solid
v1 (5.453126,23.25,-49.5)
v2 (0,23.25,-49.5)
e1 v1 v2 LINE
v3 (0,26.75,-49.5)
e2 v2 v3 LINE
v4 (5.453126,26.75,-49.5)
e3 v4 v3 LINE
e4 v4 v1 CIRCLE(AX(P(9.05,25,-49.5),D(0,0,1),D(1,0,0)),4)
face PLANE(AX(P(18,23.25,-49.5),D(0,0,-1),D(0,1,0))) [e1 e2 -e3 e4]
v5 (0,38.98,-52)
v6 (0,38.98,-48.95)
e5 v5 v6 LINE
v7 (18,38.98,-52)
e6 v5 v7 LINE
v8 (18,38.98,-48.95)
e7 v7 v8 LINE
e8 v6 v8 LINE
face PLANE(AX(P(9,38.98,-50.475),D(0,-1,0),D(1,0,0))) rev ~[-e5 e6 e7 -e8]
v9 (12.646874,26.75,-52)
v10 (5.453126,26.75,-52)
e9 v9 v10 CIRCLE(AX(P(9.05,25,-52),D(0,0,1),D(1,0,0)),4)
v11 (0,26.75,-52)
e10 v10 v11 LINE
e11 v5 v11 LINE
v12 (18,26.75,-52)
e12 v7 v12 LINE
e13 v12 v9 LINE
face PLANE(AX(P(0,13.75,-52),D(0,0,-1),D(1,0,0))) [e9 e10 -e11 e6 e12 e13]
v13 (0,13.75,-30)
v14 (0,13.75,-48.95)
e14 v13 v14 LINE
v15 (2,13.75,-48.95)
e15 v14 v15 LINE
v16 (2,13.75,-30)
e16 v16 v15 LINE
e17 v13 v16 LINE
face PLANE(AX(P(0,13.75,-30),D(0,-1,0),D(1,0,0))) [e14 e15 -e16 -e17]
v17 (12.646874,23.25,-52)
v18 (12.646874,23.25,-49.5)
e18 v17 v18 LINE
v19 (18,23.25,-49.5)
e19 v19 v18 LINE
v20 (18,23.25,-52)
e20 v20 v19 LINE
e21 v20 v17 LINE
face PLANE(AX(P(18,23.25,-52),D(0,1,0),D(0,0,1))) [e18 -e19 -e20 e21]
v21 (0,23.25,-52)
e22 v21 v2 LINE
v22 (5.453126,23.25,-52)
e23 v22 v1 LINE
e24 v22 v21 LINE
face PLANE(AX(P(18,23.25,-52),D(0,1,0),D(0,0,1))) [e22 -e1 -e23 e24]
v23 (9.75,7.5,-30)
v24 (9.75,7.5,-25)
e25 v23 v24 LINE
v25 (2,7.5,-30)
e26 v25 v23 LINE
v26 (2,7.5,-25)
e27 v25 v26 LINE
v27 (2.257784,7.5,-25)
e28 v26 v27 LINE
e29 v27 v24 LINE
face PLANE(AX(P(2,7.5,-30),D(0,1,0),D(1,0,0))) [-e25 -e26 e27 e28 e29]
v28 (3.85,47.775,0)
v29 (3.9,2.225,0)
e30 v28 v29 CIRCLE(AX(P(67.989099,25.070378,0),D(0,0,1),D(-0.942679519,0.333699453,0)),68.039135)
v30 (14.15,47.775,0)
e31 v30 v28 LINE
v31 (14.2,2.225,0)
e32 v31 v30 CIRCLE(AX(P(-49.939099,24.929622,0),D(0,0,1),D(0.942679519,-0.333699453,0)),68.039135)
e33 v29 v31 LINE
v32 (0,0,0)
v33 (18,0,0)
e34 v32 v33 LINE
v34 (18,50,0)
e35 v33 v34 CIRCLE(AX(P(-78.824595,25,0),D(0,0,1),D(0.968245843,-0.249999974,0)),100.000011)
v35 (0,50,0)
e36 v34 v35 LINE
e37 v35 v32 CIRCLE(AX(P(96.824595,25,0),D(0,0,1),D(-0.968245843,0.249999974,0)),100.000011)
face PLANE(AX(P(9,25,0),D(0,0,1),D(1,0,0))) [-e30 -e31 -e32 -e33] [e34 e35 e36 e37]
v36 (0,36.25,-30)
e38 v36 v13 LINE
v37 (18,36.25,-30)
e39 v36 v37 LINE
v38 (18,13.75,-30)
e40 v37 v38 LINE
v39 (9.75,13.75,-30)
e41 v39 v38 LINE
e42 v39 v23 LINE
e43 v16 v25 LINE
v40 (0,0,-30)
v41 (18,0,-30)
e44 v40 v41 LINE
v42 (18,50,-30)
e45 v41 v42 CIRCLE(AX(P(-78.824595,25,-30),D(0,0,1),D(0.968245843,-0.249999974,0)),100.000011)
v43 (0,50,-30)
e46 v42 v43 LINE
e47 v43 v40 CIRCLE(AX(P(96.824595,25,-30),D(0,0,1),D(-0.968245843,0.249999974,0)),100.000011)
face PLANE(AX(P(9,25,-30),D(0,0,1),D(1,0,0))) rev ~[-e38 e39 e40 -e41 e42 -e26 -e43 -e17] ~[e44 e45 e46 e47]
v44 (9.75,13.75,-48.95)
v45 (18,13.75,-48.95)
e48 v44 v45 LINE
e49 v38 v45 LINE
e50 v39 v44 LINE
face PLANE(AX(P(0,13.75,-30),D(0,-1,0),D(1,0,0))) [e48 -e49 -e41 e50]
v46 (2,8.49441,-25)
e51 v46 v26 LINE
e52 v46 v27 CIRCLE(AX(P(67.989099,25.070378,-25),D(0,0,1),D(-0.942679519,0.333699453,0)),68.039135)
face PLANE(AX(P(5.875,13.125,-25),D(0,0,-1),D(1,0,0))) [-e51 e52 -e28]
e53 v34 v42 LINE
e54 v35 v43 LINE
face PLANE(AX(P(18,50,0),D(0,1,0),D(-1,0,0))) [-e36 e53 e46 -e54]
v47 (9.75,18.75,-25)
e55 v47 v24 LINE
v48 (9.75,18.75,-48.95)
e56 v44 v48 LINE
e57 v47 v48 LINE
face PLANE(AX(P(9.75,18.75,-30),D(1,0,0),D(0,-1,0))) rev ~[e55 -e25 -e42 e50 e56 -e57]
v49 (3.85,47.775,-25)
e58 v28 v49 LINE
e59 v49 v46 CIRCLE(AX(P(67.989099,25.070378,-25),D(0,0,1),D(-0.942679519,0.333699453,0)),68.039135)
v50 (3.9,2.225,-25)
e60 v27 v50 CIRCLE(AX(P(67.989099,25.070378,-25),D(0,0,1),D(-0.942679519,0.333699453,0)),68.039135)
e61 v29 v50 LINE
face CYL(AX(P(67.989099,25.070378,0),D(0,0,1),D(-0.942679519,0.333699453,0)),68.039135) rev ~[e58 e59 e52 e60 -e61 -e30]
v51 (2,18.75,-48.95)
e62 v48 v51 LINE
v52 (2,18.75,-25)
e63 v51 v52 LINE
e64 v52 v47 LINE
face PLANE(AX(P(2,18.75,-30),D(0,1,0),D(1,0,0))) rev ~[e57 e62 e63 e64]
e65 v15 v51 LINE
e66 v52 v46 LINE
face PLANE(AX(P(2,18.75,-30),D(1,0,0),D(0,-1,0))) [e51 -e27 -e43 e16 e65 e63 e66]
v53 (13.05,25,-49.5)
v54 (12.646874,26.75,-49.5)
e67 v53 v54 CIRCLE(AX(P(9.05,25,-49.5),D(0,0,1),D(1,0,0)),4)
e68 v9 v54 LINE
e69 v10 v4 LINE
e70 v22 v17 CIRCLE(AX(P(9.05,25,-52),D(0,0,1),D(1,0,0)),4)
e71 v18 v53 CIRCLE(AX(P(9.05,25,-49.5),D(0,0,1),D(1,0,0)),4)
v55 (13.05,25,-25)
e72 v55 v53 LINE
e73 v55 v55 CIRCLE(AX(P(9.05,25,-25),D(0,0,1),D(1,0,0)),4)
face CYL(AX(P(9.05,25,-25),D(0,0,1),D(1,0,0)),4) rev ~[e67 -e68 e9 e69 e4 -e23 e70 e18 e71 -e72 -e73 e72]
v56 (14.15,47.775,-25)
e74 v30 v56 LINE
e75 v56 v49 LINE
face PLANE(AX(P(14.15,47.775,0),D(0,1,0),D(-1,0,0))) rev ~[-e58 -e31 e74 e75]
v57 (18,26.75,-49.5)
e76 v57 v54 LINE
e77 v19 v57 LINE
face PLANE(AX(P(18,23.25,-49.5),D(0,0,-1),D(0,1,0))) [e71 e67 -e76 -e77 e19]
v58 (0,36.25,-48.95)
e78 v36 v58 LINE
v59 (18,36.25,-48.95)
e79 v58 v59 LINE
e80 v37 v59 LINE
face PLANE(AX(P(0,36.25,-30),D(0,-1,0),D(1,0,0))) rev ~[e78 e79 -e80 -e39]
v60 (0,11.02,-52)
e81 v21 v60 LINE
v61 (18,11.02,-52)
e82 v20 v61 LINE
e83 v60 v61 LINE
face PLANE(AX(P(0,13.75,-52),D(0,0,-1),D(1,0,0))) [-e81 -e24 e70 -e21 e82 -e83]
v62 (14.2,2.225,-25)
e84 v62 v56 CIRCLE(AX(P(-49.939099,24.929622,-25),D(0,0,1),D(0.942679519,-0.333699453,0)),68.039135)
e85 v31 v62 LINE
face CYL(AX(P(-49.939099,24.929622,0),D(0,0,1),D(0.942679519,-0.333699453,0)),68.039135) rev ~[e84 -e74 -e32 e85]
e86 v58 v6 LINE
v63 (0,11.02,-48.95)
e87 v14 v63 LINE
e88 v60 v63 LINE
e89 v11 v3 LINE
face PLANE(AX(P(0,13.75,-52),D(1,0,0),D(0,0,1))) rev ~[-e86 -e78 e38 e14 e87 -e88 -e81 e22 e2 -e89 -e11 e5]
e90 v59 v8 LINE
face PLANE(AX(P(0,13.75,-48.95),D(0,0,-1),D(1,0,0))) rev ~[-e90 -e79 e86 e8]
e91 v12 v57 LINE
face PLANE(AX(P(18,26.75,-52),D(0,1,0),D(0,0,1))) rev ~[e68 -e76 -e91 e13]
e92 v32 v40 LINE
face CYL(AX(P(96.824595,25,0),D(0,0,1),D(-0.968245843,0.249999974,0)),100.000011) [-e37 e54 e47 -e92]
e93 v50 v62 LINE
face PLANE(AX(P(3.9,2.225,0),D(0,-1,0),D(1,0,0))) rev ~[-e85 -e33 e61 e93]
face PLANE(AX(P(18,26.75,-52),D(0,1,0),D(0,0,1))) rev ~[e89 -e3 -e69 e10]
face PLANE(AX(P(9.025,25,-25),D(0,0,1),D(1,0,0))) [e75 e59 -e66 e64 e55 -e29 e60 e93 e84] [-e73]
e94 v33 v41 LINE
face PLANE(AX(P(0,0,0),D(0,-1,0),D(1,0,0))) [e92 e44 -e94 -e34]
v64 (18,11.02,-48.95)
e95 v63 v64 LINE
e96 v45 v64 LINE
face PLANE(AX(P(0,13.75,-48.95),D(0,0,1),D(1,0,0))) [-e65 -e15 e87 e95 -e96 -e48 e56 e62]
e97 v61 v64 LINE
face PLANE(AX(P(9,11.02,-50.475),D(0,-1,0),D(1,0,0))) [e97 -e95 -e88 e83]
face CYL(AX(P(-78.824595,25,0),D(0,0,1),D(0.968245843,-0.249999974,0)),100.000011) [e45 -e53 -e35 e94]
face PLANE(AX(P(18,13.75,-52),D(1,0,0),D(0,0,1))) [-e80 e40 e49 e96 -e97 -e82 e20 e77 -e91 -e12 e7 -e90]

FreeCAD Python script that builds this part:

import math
import FreeCAD as App
import Part
import Sketcher
Q = App.Units.Quantity

doc = App.newDocument("Part")
body = doc.addObject("PartDesign::Body", "Body")

sketch1 = doc.addObject("Sketcher::SketchObject", "Sketch")
body.addObject(sketch1)
sketch1.AttachmentSupport = (doc.XY_Plane, [""])
sketch1.MapMode = "FlatFace"
sketch1.addGeometry([
    Part.LineSegment(App.Vector(0, 0, 0), App.Vector(18, 0, 0)),
    Part.ArcOfCircle(Part.Circle(App.Vector(-78.824595, 25, 0), App.Vector(0, 0, 1), 100.000011), math.radians(-14.477511), math.radians(14.477511)),
    Part.LineSegment(App.Vector(18, 50, 0), App.Vector(0, 50, 0)),
    Part.ArcOfCircle(Part.Circle(App.Vector(96.824595, 25, 0), App.Vector(0, 0, 1), 100.000011), math.radians(165.522489), math.radians(194.477511)),
], False)
sketch1.addConstraint([
    Sketcher.Constraint("Coincident", 0, 2, 1, 1),
    Sketcher.Constraint("Coincident", 1, 2, 2, 1),
    Sketcher.Constraint("Coincident", 2, 2, 3, 1),
    Sketcher.Constraint("Coincident", 3, 2, 0, 1),
    Sketcher.Constraint("Horizontal", 0),
    Sketcher.Constraint("Horizontal", 2),
    Sketcher.Constraint("Coincident", 3, 2, -1, 1),
    Sketcher.Constraint("Equal", 1, 3),
    Sketcher.Constraint("PointOnObject", 2, 2, -2),
    Sketcher.Constraint("Horizontal", 1, 3, 3, 3),
    Sketcher.Constraint("DistanceX", 0, 1, 0, 2, Q("18 mm")),
    Sketcher.Constraint("DistanceY", -1, 1, 1, 3, Q("25 mm")),
    Sketcher.Constraint("Radius", 1, Q("100.000011 mm")),
])
pad1 = doc.addObject("PartDesign::Pad", "Pad")
body.addObject(pad1)
pad1.Profile = sketch1
pad1.Length = 30
pad1.Reversed = True

sketch2 = doc.addObject("Sketcher::SketchObject", "Sketch001")
body.addObject(sketch2)
sketch2.AttachmentSupport = (doc.XY_Plane, [""])
sketch2.MapMode = "FlatFace"
sketch2.addGeometry([
    Part.LineSegment(App.Vector(3.9, 2.225, 0), App.Vector(14.2, 2.225, 0)),
    Part.ArcOfCircle(Part.Circle(App.Vector(-49.939099, 24.929622, 0), App.Vector(0, 0, 1), 68.039135), math.radians(-19.493472), math.radians(19.619258)),
    Part.LineSegment(App.Vector(14.15, 47.775, 0), App.Vector(3.85, 47.775, 0)),
    Part.ArcOfCircle(Part.Circle(App.Vector(67.989099, 25.070378, 0), App.Vector(0, 0, 1), 68.039135), math.radians(160.506528), math.radians(199.619258)),
], False)
sketch2.addConstraint([
    Sketcher.Constraint("Coincident", 0, 2, 1, 1),
    Sketcher.Constraint("Coincident", 1, 2, 2, 1),
    Sketcher.Constraint("Coincident", 2, 2, 3, 1),
    Sketcher.Constraint("Coincident", 3, 2, 0, 1),
    Sketcher.Constraint("Horizontal", 0),
    Sketcher.Constraint("Horizontal", 2),
    Sketcher.Constraint("Equal", 1, 3),
    Sketcher.Constraint("Equal", 0, 2),
    Sketcher.Constraint("DistanceX", 0, 1, 0, 2, Q("10.3 mm")),
    Sketcher.Constraint("DistanceX", -1, 1, 0, 2, Q("14.2 mm")),
    Sketcher.Constraint("DistanceX", -1, 1, 1, 2, Q("14.15 mm")),
    Sketcher.Constraint("DistanceY", 0, 2, 1, 2, Q("45.55 mm")),
    Sketcher.Constraint("DistanceY", -1, 1, 0, 2, Q("2.225 mm")),
    Sketcher.Constraint("Radius", 1, Q("68.039135 mm")),
])
pocket1 = doc.addObject("PartDesign::Pocket", "Pocket")
body.addObject(pocket1)
pocket1.Profile = sketch2
pocket1.Length = 25

sketch3 = doc.addObject("Sketcher::SketchObject", "Sketch002")
body.addObject(sketch3)
sketch3.AttachmentSupport = (doc.XY_Plane, [""])
sketch3.MapMode = "FlatFace"
sketch3.AttachmentOffset = App.Placement(App.Vector(0, 0, -30), App.Rotation())
sketch3.addGeometry([
    Part.LineSegment(App.Vector(0, 13.75, 0), App.Vector(0, 36.25, 0)),
    Part.LineSegment(App.Vector(0, 36.25, 0), App.Vector(18, 36.25, 0)),
    Part.LineSegment(App.Vector(18, 36.25, 0), App.Vector(18, 13.75, 0)),
    Part.LineSegment(App.Vector(18, 13.75, 0), App.Vector(0, 13.75, 0)),
], False)
sketch3.addConstraint([
    Sketcher.Constraint("Coincident", 0, 2, 1, 1),
    Sketcher.Constraint("Coincident", 1, 2, 2, 1),
    Sketcher.Constraint("Coincident", 2, 2, 3, 1),
    Sketcher.Constraint("Coincident", 3, 2, 0, 1),
    Sketcher.Constraint("Vertical", 0),
    Sketcher.Constraint("Horizontal", 1),
    Sketcher.Constraint("Vertical", 2),
    Sketcher.Constraint("Horizontal", 3),
    Sketcher.Constraint("PointOnObject", 0, 2, -2),
    Sketcher.Constraint("DistanceX", 1, 1, 1, 2, Q("18 mm")),
    Sketcher.Constraint("DistanceY", 0, 1, 0, 2, Q("22.5 mm")),
    Sketcher.Constraint("DistanceY", -1, 1, 0, 2, Q("36.25 mm")),
])
pad2 = doc.addObject("PartDesign::Pad", "Pad001")
body.addObject(pad2)
pad2.Profile = sketch3
pad2.Length = 19
pad2.Reversed = True

sketch4 = doc.addObject("Sketcher::SketchObject", "Sketch003")
body.addObject(sketch4)
sketch4.AttachmentSupport = (doc.XY_Plane, [""])
sketch4.MapMode = "FlatFace"
sketch4.AttachmentOffset = App.Placement(App.Vector(0, 0, -30), App.Rotation())
sketch4.addGeometry([
    Part.LineSegment(App.Vector(2, 7.5, 0), App.Vector(2, 18.75, 0)),
    Part.LineSegment(App.Vector(2, 18.75, 0), App.Vector(9.75, 18.75, 0)),
    Part.LineSegment(App.Vector(9.75, 18.75, 0), App.Vector(9.75, 7.5, 0)),
    Part.LineSegment(App.Vector(9.75, 7.5, 0), App.Vector(2, 7.5, 0)),
], False)
sketch4.addConstraint([
    Sketcher.Constraint("Coincident", 0, 2, 1, 1),
    Sketcher.Constraint("Coincident", 1, 2, 2, 1),
    Sketcher.Constraint("Coincident", 2, 2, 3, 1),
    Sketcher.Constraint("Coincident", 3, 2, 0, 1),
    Sketcher.Constraint("Vertical", 0),
    Sketcher.Constraint("Horizontal", 1),
    Sketcher.Constraint("Vertical", 2),
    Sketcher.Constraint("Horizontal", 3),
    Sketcher.Constraint("DistanceX", -1, 1, 0, 2, Q("2 mm")),
    Sketcher.Constraint("DistanceX", 1, 1, 1, 2, Q("7.75 mm")),
    Sketcher.Constraint("DistanceY", 0, 1, 0, 2, Q("11.25 mm")),
    Sketcher.Constraint("DistanceY", -1, 1, 2, 2, Q("7.5 mm")),
])
pocket2 = doc.addObject("PartDesign::Pocket", "Pocket001")
body.addObject(pocket2)
pocket2.Profile = sketch4
pocket2.Type = "TwoLengths"
pocket2.Length = 5
pocket2.Length2 = 24
pocket2.Reversed = True

sketch5 = doc.addObject("Sketcher::SketchObject", "Sketch004")
body.addObject(sketch5)
sketch5.AttachmentSupport = (doc.XZ_Plane, [""])
sketch5.MapMode = "FlatFace"
sketch5.AttachmentOffset = App.Placement(App.Vector(0, 0, -13.75), App.Rotation())
sketch5.addGeometry([
    Part.LineSegment(App.Vector(0, -48.95, 0), App.Vector(0, -52, 0)),
    Part.LineSegment(App.Vector(0, -52, 0), App.Vector(18, -52, 0)),
    Part.LineSegment(App.Vector(18, -52, 0), App.Vector(18, -48.95, 0)),
    Part.LineSegment(App.Vector(18, -48.95, 0), App.Vector(0, -48.95, 0)),
], False)
sketch5.addConstraint([
    Sketcher.Constraint("Coincident", 0, 2, 1, 1),
    Sketcher.Constraint("Coincident", 1, 2, 2, 1),
    Sketcher.Constraint("Coincident", 2, 2, 3, 1),
    Sketcher.Constraint("Coincident", 3, 2, 0, 1),
    Sketcher.Constraint("Vertical", 0),
    Sketcher.Constraint("Horizontal", 1),
    Sketcher.Constraint("Vertical", 2),
    Sketcher.Constraint("Horizontal", 3),
    Sketcher.Constraint("PointOnObject", 0, 2, -2),
    Sketcher.Constraint("DistanceX", 1, 1, 1, 2, Q("18 mm")),
    Sketcher.Constraint("DistanceY", 0, 2, -1, 1, Q("52 mm")),
    Sketcher.Constraint("DistanceY", 0, 2, 0, 1, Q("3.05 mm")),
])
pad3 = doc.addObject("PartDesign::Pad", "Pad002")
body.addObject(pad3)
pad3.Profile = sketch5
pad3.Type = "TwoLengths"
pad3.Length = 2.73
pad3.Length2 = 25.23

sketch6 = doc.addObject("Sketcher::SketchObject", "Sketch005")
body.addObject(sketch6)
sketch6.AttachmentSupport = (doc.YZ_Plane, [""])
sketch6.MapMode = "FlatFace"
sketch6.AttachmentOffset = App.Placement(App.Vector(0, 0, 18), App.Rotation())
sketch6.addGeometry([
    Part.LineSegment(App.Vector(23.25, -49.5, 0), App.Vector(23.25, -52, 0)),
    Part.LineSegment(App.Vector(23.25, -52, 0), App.Vector(26.75, -52, 0)),
    Part.LineSegment(App.Vector(26.75, -52, 0), App.Vector(26.75, -49.5, 0)),
    Part.LineSegment(App.Vector(26.75, -49.5, 0), App.Vector(23.25, -49.5, 0)),
], False)
sketch6.addConstraint([
    Sketcher.Constraint("Coincident", 0, 2, 1, 1),
    Sketcher.Constraint("Coincident", 1, 2, 2, 1),
    Sketcher.Constraint("Coincident", 2, 2, 3, 1),
    Sketcher.Constraint("Coincident", 3, 2, 0, 1),
    Sketcher.Constraint("Vertical", 0),
    Sketcher.Constraint("Horizontal", 1),
    Sketcher.Constraint("Vertical", 2),
    Sketcher.Constraint("Horizontal", 3),
    Sketcher.Constraint("DistanceX", 1, 1, 1, 2, Q("3.5 mm")),
    Sketcher.Constraint("DistanceY", 0, 2, 0, 1, Q("2.5 mm")),
    Sketcher.Constraint("DistanceY", 0, 2, -1, 1, Q("52 mm")),
    Sketcher.Constraint("DistanceX", -1, 1, 0, 2, Q("23.25 mm")),
])
pocket3 = doc.addObject("PartDesign::Pocket", "Pocket002")
body.addObject(pocket3)
pocket3.Profile = sketch6
pocket3.Length = 18

sketch7 = doc.addObject("Sketcher::SketchObject", "Sketch006")
body.addObject(sketch7)
sketch7.AttachmentSupport = (doc.XY_Plane, [""])
sketch7.MapMode = "FlatFace"
sketch7.AttachmentOffset = App.Placement(App.Vector(0, 0, -25), App.Rotation())
sketch7.addGeometry(Part.Circle(App.Vector(9.05, 25, 0), App.Vector(0, 0, 1), 4), False)
sketch7.addConstraint([
    Sketcher.Constraint("Diameter", 0, Q("8 mm")),
    Sketcher.Constraint("DistanceY", -1, 1, 0, 3, Q("25 mm")),
    Sketcher.Constraint("DistanceX", -1, 1, 0, 3, Q("9.05 mm")),
])
pocket4 = doc.addObject("PartDesign::Pocket", "Pocket003")
body.addObject(pocket4)
pocket4.Profile = sketch7
pocket4.Type = "ThroughAll"
pocket4.Midplane = True

doc.recompute()
